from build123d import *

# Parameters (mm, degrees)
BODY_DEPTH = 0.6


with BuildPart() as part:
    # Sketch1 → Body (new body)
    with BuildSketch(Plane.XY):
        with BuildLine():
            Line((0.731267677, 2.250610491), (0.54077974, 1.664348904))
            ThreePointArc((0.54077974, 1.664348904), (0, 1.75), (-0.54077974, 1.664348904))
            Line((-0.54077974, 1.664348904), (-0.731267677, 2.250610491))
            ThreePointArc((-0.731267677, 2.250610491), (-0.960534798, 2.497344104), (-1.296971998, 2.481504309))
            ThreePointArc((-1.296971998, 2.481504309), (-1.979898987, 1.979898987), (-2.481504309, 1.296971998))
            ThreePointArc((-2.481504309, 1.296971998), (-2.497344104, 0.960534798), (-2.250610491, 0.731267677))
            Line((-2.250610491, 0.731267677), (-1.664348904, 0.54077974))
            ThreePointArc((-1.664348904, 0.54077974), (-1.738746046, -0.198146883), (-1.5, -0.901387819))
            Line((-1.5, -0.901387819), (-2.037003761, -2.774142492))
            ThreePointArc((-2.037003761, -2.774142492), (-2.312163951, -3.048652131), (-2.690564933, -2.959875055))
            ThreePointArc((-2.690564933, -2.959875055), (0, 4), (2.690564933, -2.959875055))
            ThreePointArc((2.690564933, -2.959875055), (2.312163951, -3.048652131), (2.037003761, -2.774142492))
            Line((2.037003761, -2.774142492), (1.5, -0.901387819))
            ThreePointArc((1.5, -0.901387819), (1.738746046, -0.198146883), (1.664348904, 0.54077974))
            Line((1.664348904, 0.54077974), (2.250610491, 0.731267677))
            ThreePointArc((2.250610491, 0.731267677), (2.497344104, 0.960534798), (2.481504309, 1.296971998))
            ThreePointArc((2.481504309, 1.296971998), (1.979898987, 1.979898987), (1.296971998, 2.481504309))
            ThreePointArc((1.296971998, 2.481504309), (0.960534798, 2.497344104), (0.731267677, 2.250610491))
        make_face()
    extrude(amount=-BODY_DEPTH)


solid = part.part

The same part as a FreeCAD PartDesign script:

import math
import FreeCAD as App
import Part
import Sketcher

V = App.Vector
Q = App.Units.Quantity

doc = App.newDocument("Part")
body = doc.addObject("PartDesign::Body", "Body")

# Sketch on XY plane
sketch1 = body.newObject("Sketcher::SketchObject", "Sketch")
sketch1.AttachmentSupport = (doc.getObject("XY_Plane"), [""])
sketch1.MapMode = "FlatFace"
sketch1.addGeometry(Part.LineSegment(V(0.54, 1.66, 0), V(0.73, 2.25, 0)), False)
sketch1.addGeometry(Part.ArcOfCircle(Part.Circle(V(1.11, 2.13, 0), V(0, 0, 1), 0.4), math.radians(62), math.radians(162)), False)
sketch1.addGeometry(Part.ArcOfCircle(Part.Circle(V(0, 0, 0), V(0, 0, 1), 2.8), math.radians(28), math.radians(62)), False)
sketch1.addGeometry(Part.ArcOfCircle(Part.Circle(V(2.13, 1.11, 0), V(0, 0, 1), 0.4), math.radians(-72), math.radians(28)), False)
sketch1.addGeometry(Part.LineSegment(V(2.25, 0.73, 0), V(1.66, 0.54, 0)), False)
sketch1.addGeometry(Part.ArcOfCircle(Part.Circle(V(0, 0, 0), V(0, 0, 1), 1.75), math.radians(-31), math.radians(18)), False)
sketch1.addGeometry(Part.LineSegment(V(1.5, -0.9, 0), V(2.04, -2.77, 0)), False)
sketch1.addGeometry(Part.ArcOfCircle(Part.Circle(V(2.42, -2.66, 0), V(0, 0, 1), 0.4), math.radians(-164), math.radians(-48)), False)
sketch1.addGeometry(Part.ArcOfCircle(Part.Circle(V(0, 0, 0), V(0, 0, 1), 4), math.radians(-48), math.radians(228)), False)
sketch1.addGeometry(Part.ArcOfCircle(Part.Circle(V(-2.42, -2.66, 0), V(0, 0, 1), 0.4), math.radians(-132), math.radians(-16)), False)
sketch1.addGeometry(Part.LineSegment(V(-2.04, -2.77, 0), V(-1.5, -0.9, 0)), False)
sketch1.addGeometry(Part.ArcOfCircle(Part.Circle(V(0, 0, 0), V(0, 0, 1), 1.75), math.radians(162), math.radians(211)), False)
sketch1.addGeometry(Part.LineSegment(V(-1.66, 0.54, 0), V(-2.25, 0.73, 0)), False)
sketch1.addGeometry(Part.ArcOfCircle(Part.Circle(V(-2.13, 1.11, 0), V(0, 0, 1), 0.4), math.radians(152), math.radians(252)), False)
sketch1.addGeometry(Part.ArcOfCircle(Part.Circle(V(0, 0, 0), V(0, 0, 1), 2.8), math.radians(118), math.radians(152)), False)
sketch1.addGeometry(Part.ArcOfCircle(Part.Circle(V(-1.11, 2.13, 0), V(0, 0, 1), 0.4), math.radians(18), math.radians(118)), False)
sketch1.addGeometry(Part.LineSegment(V(-0.73, 2.25, 0), V(-0.54, 1.66, 0)), False)
sketch1.addGeometry(Part.ArcOfCircle(Part.Circle(V(0, 0, 0), V(0, 0, 1), 1.75), math.radians(72), math.radians(108)), False)
sketch1.addConstraint(Sketcher.Constraint("Tangent", 0, 2, 1, 2))
sketch1.addConstraint(Sketcher.Constraint("Tangent", 1, 1, 2, 2))
sketch1.addConstraint(Sketcher.Constraint("Tangent", 2, 1, 3, 2))
sketch1.addConstraint(Sketcher.Constraint("Tangent", 3, 1, 4, 1))
sketch1.addConstraint(Sketcher.Constraint("Coincident", 4, 2, 5, 2))
sketch1.addConstraint(Sketcher.Constraint("Coincident", 5, 1, 6, 1))
sketch1.addConstraint(Sketcher.Constraint("Tangent", 6, 2, 7, 1))
sketch1.addConstraint(Sketcher.Constraint("Tangent", 7, 2, 8, 1))
sketch1.addConstraint(Sketcher.Constraint("Tangent", 8, 2, 9, 1))
sketch1.addConstraint(Sketcher.Constraint("Tangent", 9, 2, 10, 1))
sketch1.addConstraint(Sketcher.Constraint("Coincident", 10, 2, 11, 2))
sketch1.addConstraint(Sketcher.Constraint("Coincident", 11, 1, 12, 1))
sketch1.addConstraint(Sketcher.Constraint("Tangent", 12, 2, 13, 2))
sketch1.addConstraint(Sketcher.Constraint("Tangent", 13, 1, 14, 2))
sketch1.addConstraint(Sketcher.Constraint("Tangent", 14, 1, 15, 2))
sketch1.addConstraint(Sketcher.Constraint("Tangent", 15, 1, 16, 1))
sketch1.addConstraint(Sketcher.Constraint("Coincident", 16, 2, 17, 2))
sketch1.addConstraint(Sketcher.Constraint("Coincident", 17, 1, 0, 1))
sketch1.addConstraint(Sketcher.Constraint("Coincident", 2, 3, -1, 1))
sketch1.addConstraint(Sketcher.Constraint("Coincident", 5, 3, -1, 1))
sketch1.addConstraint(Sketcher.Constraint("Coincident", 8, 3, -1, 1))
sketch1.addConstraint(Sketcher.Constraint("Coincident", 11, 3, -1, 1))
sketch1.addConstraint(Sketcher.Constraint("Coincident", 14, 3, -1, 1))
sketch1.addConstraint(Sketcher.Constraint("Coincident", 17, 3, -1, 1))
sketch1.addConstraint(Sketcher.Constraint("Equal", 1, 3))
sketch1.addConstraint(Sketcher.Constraint("Equal", 3, 7))
sketch1.addConstraint(Sketcher.Constraint("Equal", 7, 9))
sketch1.addConstraint(Sketcher.Constraint("Equal", 5, 11))
sketch1.addConstraint(Sketcher.Constraint("Equal", 9, 13))
sketch1.addConstraint(Sketcher.Constraint("Equal", 2, 14))
sketch1.addConstraint(Sketcher.Constraint("Equal", 13, 15))
sketch1.addConstraint(Sketcher.Constraint("Equal", 11, 17))
sketch1.addConstraint(Sketcher.Constraint("Symmetric", 6, 2, 9, 2, -2))
sketch1.addConstraint(Sketcher.Constraint("Symmetric", 3, 1, 12, 2, -2))
sketch1.addConstraint(Sketcher.Constraint("Symmetric", 0, 2, 15, 1, -2))
sketch1.addConstraint(Sketcher.Constraint("Perpendicular", 0, 12))
sketch1.addConstraint(Sketcher.Constraint("Equal", 0, 4))
sketch1.addConstraint(Sketcher.Constraint("Radius", 8, 4.0))
sketch1.addConstraint(Sketcher.Constraint("Radius", 1, 0.4))
sketch1.addConstraint(Sketcher.Constraint("Radius", 2, 2.8))
sketch1.addConstraint(Sketcher.Constraint("Angle", 0, Q("72 deg")))
sketch1.addConstraint(Sketcher.Constraint("Angle", 6, Q("-74 deg")))
sketch1.addConstraint(Sketcher.Constraint("Radius", 5, 1.75))
sketch1.addConstraint(Sketcher.Constraint("DistanceX", -1, 1, 5, 1, 1.5))
sketch1.addConstraint(Sketcher.Constraint("DistanceY", 1, 3, 1, 1, 0.354501))
pad1 = body.newObject("PartDesign::Pad", "Pad")
pad1.Profile = sketch1
pad1.Length = 0.6
pad1.Reversed = True

doc.recompute()
